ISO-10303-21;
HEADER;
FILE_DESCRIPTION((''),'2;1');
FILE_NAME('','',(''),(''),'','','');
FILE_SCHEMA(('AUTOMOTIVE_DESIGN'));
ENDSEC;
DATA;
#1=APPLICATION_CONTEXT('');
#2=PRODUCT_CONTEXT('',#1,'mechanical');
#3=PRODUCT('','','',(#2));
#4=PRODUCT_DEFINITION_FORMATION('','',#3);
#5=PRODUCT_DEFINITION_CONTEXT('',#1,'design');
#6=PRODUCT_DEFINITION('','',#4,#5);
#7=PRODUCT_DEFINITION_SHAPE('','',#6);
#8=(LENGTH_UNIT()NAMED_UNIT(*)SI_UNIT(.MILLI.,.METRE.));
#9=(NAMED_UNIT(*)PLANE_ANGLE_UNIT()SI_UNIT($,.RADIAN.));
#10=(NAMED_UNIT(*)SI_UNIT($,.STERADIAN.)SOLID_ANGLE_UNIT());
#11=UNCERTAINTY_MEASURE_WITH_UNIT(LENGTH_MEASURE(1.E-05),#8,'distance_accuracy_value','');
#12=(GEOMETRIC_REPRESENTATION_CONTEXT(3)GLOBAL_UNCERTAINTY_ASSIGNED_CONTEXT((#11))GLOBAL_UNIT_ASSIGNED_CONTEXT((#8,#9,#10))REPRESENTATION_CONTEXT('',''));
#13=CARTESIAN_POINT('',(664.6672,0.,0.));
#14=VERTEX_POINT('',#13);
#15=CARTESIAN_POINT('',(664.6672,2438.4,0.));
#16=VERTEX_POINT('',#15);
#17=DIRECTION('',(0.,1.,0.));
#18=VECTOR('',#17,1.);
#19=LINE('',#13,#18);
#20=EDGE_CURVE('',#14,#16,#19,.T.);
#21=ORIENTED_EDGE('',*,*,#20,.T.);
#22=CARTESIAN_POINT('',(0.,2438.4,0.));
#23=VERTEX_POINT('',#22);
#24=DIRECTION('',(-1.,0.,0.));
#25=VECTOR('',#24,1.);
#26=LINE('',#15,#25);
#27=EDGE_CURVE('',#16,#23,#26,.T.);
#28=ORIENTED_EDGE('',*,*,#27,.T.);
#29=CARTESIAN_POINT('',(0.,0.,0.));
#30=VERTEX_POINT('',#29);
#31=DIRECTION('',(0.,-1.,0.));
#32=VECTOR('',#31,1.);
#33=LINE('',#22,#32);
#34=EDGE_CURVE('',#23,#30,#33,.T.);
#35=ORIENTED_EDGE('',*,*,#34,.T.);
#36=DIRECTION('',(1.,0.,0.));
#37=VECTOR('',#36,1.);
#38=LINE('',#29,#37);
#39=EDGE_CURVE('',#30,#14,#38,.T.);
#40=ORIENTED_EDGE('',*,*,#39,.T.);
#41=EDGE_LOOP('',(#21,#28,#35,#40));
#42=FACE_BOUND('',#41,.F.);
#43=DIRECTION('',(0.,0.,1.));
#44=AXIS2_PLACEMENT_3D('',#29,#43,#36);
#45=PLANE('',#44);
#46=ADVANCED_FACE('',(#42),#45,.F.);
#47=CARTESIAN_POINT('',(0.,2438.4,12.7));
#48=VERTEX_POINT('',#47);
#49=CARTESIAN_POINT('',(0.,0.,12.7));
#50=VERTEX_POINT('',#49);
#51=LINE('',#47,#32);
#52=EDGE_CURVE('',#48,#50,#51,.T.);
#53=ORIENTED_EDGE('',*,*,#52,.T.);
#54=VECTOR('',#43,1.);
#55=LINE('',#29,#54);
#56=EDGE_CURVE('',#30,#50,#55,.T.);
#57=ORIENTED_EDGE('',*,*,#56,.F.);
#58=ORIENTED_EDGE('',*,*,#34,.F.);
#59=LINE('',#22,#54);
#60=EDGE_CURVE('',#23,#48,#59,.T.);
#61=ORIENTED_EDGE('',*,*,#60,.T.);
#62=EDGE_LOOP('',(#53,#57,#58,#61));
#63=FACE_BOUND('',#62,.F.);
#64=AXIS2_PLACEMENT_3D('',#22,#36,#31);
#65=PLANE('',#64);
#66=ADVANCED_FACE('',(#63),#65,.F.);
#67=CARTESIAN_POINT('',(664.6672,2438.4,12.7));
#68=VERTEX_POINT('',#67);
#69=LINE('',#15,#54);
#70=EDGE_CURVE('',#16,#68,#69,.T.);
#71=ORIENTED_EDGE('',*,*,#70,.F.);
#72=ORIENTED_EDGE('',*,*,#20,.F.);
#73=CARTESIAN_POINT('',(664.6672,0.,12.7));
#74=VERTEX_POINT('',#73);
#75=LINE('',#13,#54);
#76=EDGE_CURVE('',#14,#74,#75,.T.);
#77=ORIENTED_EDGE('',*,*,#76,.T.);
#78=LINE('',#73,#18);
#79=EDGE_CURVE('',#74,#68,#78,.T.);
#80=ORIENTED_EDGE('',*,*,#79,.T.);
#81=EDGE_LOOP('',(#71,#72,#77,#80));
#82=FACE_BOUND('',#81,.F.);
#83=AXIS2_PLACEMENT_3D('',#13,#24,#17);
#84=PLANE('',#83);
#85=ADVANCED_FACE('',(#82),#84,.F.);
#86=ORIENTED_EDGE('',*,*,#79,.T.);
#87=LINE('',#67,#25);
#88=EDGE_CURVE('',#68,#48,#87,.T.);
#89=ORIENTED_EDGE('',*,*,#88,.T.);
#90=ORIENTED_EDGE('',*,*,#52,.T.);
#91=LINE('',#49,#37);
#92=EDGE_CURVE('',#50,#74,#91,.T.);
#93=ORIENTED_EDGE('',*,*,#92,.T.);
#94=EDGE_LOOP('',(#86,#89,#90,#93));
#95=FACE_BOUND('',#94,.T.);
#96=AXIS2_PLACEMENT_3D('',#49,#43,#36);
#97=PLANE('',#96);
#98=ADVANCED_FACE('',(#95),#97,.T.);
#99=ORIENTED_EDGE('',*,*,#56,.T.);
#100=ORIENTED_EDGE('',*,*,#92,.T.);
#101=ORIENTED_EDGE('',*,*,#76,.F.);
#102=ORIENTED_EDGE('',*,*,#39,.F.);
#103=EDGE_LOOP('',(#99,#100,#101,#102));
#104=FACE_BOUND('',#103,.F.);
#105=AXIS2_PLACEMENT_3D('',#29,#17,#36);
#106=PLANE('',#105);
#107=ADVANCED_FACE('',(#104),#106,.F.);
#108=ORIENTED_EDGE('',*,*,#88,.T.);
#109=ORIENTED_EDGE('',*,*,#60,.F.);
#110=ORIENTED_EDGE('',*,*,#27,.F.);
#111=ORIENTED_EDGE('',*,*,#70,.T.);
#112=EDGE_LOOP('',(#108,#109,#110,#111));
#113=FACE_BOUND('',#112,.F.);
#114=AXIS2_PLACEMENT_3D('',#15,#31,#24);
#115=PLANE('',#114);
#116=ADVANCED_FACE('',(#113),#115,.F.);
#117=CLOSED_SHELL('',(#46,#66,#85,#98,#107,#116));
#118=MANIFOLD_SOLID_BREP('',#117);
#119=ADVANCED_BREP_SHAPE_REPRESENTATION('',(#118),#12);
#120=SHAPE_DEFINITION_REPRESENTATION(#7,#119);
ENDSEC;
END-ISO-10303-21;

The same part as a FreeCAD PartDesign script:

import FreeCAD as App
import Part
import Sketcher

V = App.Vector
Q = App.Units.Quantity

doc = App.newDocument("Part")
params = doc.addObject("Spreadsheet::Sheet", "Params")
for row, (alias, value) in enumerate([
    ("sketch1_height", "96 in"),
    ("sketch1_width", "26.168 in"),
    ("pad1_length", "0.5 in"),
], start=1):
    params.set(f"A{row}", alias)
    params.set(f"B{row}", "=" + value)
    params.setAlias(f"B{row}", alias)

body = doc.addObject("PartDesign::Body", "Body")

sketch1 = doc.addObject("Sketcher::SketchObject", "Sketch")
body.addObject(sketch1)
sketch1.AttachmentSupport = (doc.XY_Plane, [""])
sketch1.MapMode = "FlatFace"
sketch1.addGeometry(Part.LineSegment(V(0, 2438, 0), V(0, 0, 0)), False)
sketch1.addGeometry(Part.LineSegment(V(0, 0, 0), V(665, 0, 0)), False)
sketch1.addGeometry(Part.LineSegment(V(665, 0, 0), V(665, 2438, 0)), False)
sketch1.addGeometry(Part.LineSegment(V(665, 2438, 0), V(0, 2438, 0)), False)
sketch1.addConstraint(Sketcher.Constraint("Coincident", 0, 2, 1, 1))
sketch1.addConstraint(Sketcher.Constraint("Coincident", 1, 2, 2, 1))
sketch1.addConstraint(Sketcher.Constraint("Coincident", 2, 2, 3, 1))
sketch1.addConstraint(Sketcher.Constraint("Coincident", 3, 2, 0, 1))
sketch1.addConstraint(Sketcher.Constraint("Vertical", 0))
sketch1.addConstraint(Sketcher.Constraint("Horizontal", 1))
sketch1.addConstraint(Sketcher.Constraint("Vertical", 2))
sketch1.addConstraint(Sketcher.Constraint("Horizontal", 3))
sketch1.addConstraint(Sketcher.Constraint("Coincident", 0, 2, -1, 1))
sketch1.addConstraint(Sketcher.Constraint("DistanceY", 0, 2, 0, 1, Q("96 in")))
sketch1.addConstraint(Sketcher.Constraint("DistanceX", 1, 1, 1, 2, Q("26.168 in")))
sketch1.setExpression("Constraints[9]", "Params.sketch1_height")
sketch1.setExpression("Constraints[10]", "Params.sketch1_width")
pad1 = doc.addObject("PartDesign::Pad", "Pad")
body.addObject(pad1)
pad1.Profile = sketch1
pad1.setExpression("Length", "Params.pad1_length")

doc.recompute()
